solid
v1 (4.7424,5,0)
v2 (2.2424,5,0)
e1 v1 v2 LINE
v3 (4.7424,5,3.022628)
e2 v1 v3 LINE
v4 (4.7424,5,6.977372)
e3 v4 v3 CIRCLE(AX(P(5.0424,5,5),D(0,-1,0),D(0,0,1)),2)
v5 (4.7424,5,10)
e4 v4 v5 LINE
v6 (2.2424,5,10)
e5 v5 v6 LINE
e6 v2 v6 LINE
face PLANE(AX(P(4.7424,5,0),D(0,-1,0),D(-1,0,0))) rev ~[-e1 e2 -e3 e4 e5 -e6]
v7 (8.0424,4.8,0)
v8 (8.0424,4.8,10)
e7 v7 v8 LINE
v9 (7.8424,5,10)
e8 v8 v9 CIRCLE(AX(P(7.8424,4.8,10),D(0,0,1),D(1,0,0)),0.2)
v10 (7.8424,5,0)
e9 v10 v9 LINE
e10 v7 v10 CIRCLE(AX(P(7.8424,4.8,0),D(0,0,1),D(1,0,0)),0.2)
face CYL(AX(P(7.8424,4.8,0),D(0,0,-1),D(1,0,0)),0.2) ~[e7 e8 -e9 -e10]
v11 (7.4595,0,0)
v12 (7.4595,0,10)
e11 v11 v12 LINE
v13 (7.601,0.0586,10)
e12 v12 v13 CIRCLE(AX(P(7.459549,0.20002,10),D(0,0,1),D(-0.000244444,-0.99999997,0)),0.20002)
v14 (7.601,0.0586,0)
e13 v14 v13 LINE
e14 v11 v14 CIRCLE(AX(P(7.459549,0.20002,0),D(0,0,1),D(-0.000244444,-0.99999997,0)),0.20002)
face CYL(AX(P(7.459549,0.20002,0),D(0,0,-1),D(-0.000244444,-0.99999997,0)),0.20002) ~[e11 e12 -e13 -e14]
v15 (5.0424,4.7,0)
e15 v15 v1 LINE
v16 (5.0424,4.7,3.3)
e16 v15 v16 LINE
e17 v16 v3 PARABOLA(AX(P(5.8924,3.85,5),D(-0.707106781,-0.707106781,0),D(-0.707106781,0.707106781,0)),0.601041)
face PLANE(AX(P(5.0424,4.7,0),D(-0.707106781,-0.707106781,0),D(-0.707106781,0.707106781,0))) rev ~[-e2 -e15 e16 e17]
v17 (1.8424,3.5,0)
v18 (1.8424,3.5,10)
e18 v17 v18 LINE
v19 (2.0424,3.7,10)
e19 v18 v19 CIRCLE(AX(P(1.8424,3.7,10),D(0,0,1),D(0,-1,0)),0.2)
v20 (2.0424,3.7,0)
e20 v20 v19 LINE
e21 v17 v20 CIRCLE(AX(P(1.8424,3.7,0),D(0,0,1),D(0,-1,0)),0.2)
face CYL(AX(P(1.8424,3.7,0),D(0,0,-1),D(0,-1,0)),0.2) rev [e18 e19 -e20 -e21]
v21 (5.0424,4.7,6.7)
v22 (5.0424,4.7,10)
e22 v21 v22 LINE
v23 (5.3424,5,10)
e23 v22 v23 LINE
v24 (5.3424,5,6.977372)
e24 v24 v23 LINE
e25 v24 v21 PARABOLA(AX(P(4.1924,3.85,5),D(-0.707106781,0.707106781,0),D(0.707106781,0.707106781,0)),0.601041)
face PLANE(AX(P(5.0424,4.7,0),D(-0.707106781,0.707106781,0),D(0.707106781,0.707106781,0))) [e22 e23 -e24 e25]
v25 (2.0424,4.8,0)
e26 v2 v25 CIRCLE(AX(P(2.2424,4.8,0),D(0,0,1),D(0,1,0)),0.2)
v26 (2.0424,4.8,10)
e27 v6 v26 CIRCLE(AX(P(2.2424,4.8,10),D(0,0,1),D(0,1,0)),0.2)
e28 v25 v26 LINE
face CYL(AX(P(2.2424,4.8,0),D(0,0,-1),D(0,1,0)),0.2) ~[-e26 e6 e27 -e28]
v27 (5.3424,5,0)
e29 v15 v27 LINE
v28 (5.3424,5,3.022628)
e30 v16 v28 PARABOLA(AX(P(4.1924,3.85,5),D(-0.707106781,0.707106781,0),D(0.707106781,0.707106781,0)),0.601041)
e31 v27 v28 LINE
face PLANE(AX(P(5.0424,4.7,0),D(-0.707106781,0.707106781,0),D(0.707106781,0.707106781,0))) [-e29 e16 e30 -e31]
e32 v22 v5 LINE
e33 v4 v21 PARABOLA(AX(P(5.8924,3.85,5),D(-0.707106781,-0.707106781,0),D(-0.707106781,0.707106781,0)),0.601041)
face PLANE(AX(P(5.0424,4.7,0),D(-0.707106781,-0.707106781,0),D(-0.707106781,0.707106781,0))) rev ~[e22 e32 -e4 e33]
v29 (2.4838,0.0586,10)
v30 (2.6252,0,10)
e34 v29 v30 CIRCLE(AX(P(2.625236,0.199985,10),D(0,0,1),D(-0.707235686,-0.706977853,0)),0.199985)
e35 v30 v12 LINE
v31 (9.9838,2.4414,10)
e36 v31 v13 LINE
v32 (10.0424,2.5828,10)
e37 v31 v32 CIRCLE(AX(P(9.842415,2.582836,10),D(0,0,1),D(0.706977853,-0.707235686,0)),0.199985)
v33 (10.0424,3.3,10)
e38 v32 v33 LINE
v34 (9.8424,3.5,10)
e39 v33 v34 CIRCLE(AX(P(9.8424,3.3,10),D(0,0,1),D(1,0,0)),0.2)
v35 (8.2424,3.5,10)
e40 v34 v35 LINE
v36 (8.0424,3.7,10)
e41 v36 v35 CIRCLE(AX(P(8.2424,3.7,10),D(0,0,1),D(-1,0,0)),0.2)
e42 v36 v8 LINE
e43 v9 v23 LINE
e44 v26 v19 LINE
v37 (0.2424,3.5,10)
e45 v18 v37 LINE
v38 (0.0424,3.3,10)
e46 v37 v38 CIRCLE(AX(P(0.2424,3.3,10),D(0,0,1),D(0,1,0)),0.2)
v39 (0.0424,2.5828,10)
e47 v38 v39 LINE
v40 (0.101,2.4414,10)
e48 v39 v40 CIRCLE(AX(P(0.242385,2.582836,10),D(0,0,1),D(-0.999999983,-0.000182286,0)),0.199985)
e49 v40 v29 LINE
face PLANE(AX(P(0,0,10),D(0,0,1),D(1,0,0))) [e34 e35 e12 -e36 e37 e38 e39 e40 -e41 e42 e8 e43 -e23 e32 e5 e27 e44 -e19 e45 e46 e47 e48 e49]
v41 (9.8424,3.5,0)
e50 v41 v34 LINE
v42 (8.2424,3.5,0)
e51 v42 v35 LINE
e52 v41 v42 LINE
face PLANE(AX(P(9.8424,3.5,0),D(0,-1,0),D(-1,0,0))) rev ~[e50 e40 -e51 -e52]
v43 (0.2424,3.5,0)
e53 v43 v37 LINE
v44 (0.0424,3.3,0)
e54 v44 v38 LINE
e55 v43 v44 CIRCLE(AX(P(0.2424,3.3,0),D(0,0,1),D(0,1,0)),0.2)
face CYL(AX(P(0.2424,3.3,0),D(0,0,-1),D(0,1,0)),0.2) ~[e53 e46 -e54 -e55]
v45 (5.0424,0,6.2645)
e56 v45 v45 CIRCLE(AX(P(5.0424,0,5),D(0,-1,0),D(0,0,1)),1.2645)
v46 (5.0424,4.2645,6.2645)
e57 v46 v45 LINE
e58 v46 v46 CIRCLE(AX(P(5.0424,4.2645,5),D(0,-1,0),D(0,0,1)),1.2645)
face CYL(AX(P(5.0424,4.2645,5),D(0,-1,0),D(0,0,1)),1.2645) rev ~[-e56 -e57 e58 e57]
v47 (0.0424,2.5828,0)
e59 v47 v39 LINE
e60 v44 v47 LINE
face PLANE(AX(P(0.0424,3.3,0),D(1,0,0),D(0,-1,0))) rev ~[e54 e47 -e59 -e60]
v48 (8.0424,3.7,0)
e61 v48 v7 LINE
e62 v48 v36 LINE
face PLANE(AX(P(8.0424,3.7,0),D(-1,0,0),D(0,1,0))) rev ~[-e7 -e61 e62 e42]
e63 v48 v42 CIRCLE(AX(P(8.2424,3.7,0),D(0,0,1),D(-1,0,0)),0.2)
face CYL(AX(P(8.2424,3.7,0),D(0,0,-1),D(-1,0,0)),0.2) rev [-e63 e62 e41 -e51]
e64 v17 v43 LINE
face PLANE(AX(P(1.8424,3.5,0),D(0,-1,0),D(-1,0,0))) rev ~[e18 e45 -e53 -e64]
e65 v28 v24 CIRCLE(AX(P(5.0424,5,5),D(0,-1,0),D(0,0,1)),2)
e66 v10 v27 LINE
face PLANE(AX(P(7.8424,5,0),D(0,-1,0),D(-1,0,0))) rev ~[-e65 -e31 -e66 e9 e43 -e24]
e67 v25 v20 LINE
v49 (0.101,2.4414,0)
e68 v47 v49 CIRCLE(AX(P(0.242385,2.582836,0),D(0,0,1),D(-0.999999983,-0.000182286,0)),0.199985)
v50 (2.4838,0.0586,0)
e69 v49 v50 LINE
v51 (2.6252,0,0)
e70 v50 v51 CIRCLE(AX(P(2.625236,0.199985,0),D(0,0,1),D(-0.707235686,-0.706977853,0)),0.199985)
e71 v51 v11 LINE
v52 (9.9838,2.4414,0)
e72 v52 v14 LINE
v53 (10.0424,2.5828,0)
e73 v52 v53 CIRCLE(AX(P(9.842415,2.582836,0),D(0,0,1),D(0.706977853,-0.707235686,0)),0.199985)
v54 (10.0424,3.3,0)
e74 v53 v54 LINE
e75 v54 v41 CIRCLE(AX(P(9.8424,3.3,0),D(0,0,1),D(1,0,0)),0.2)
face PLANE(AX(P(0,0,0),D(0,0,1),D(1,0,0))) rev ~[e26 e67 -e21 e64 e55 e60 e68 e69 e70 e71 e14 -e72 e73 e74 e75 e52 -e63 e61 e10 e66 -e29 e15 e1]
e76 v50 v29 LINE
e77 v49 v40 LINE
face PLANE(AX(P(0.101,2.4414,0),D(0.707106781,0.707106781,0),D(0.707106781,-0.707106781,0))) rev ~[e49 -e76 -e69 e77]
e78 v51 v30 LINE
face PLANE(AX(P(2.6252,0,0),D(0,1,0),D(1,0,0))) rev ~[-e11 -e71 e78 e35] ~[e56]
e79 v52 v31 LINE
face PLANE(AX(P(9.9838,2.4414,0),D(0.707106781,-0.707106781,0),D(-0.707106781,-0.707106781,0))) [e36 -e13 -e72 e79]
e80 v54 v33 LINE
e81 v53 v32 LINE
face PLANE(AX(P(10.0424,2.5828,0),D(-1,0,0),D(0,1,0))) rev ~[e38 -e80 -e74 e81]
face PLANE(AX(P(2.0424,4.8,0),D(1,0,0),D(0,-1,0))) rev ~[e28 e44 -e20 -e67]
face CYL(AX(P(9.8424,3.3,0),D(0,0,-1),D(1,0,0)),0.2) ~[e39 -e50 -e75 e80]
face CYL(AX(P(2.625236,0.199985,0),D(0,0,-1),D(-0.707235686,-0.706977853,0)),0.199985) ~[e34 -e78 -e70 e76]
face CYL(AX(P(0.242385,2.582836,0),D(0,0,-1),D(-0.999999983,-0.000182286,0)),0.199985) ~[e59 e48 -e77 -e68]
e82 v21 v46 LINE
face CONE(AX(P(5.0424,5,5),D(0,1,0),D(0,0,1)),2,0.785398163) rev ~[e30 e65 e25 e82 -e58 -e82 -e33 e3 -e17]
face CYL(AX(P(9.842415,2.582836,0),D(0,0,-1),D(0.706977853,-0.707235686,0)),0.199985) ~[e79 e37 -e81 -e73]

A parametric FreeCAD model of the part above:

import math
import FreeCAD as App
import Part
import Sketcher
from FreeCAD import Vector

doc = App.newDocument("Part")
body = doc.addObject("PartDesign::Body", "Body")

# Sketch on XY plane
sketch1 = doc.addObject("Sketcher::SketchObject", "Sketch")
body.addObject(sketch1)
sketch1.AttachmentSupport = (doc.XY_Plane, [""])
sketch1.MapMode = "FlatFace"
sketch1.addGeometry([
    Part.ArcOfCircle(Part.Circle(Vector(2.6252, 0.2, 0), Vector(0, 0, 1), 0.19997), math.radians(-135), math.radians(-90)),  # 0
    Part.LineSegment(Vector(2.6252, 0, 0), Vector(7.4595, 0, 0)),  # 1
    Part.ArcOfCircle(Part.Circle(Vector(7.4595, 0.2, 0), Vector(0, 0, 1), 0.2), math.radians(-90), math.radians(-44.979747)),  # 2
    Part.LineSegment(Vector(7.601, 0.0586, 0), Vector(9.9838, 2.4414, 0)),  # 3
    Part.ArcOfCircle(Part.Circle(Vector(9.8424, 2.5828, 0), Vector(0, 0, 1), 0.19997), math.radians(-45), math.radians(0)),  # 4
    Part.LineSegment(Vector(10.0424, 2.5828, 0), Vector(10.0424, 3.3, 0)),  # 5
    Part.ArcOfCircle(Part.Circle(Vector(9.8424, 3.3, 0), Vector(0, 0, 1), 0.2), math.radians(0), math.radians(90)),  # 6
    Part.LineSegment(Vector(9.8424, 3.5, 0), Vector(8.2424, 3.5, 0)),  # 7
    Part.ArcOfCircle(Part.Circle(Vector(8.2424, 3.7, 0), Vector(0, 0, 1), 0.2), math.radians(180), math.radians(270)),  # 8
    Part.LineSegment(Vector(8.0424, 3.7, 0), Vector(8.0424, 4.8, 0)),  # 9
    Part.ArcOfCircle(Part.Circle(Vector(7.8424, 4.8, 0), Vector(0, 0, 1), 0.2), math.radians(0), math.radians(90)),  # 10
    Part.LineSegment(Vector(7.8424, 5, 0), Vector(5.3424, 5, 0)),  # 11
    Part.LineSegment(Vector(5.3424, 5, 0), Vector(5.0424, 4.7, 0)),  # 12
    Part.LineSegment(Vector(5.0424, 4.7, 0), Vector(4.7424, 5, 0)),  # 13
    Part.LineSegment(Vector(4.7424, 5, 0), Vector(2.2424, 5, 0)),  # 14
    Part.ArcOfCircle(Part.Circle(Vector(2.2424, 4.8, 0), Vector(0, 0, 1), 0.2), math.radians(90), math.radians(180)),  # 15
    Part.LineSegment(Vector(2.0424, 4.8, 0), Vector(2.0424, 3.7, 0)),  # 16
    Part.ArcOfCircle(Part.Circle(Vector(1.8424, 3.7, 0), Vector(0, 0, 1), 0.2), math.radians(-90), math.radians(0)),  # 17
    Part.LineSegment(Vector(1.8424, 3.5, 0), Vector(0.2424, 3.5, 0)),  # 18
    Part.ArcOfCircle(Part.Circle(Vector(0.2424, 3.3, 0), Vector(0, 0, 1), 0.2), math.radians(90), math.radians(180)),  # 19
    Part.LineSegment(Vector(0.0424, 3.3, 0), Vector(0.0424, 2.5828, 0)),  # 20
    Part.ArcOfCircle(Part.Circle(Vector(0.2424, 2.5828, 0), Vector(0, 0, 1), 0.2), math.radians(180), math.radians(225)),  # 21
    Part.LineSegment(Vector(0.101, 2.4414, 0), Vector(2.4838, 0.0586, 0)),  # 22
], False)
sketch1.addConstraint([
    Sketcher.Constraint("Tangent", 0, 2, 1, 1),
    Sketcher.Constraint("Tangent", 1, 2, 2, 1),
    Sketcher.Constraint("Tangent", 2, 2, 3, 1),
    Sketcher.Constraint("Tangent", 3, 2, 4, 1),
    Sketcher.Constraint("Tangent", 4, 2, 5, 1),
    Sketcher.Constraint("Tangent", 5, 2, 6, 1),
    Sketcher.Constraint("Tangent", 6, 2, 7, 1),
    Sketcher.Constraint("Tangent", 7, 2, 8, 2),
    Sketcher.Constraint("Tangent", 8, 1, 9, 1),
    Sketcher.Constraint("Tangent", 9, 2, 10, 1),
    Sketcher.Constraint("Tangent", 10, 2, 11, 1),
    Sketcher.Constraint("Coincident", 11, 2, 12, 1),
    Sketcher.Constraint("Coincident", 12, 2, 13, 1),
    Sketcher.Constraint("Coincident", 13, 2, 14, 1),
    Sketcher.Constraint("Tangent", 14, 2, 15, 1),
    Sketcher.Constraint("Tangent", 15, 2, 16, 1),
    Sketcher.Constraint("Tangent", 16, 2, 17, 2),
    Sketcher.Constraint("Tangent", 17, 1, 18, 1),
    Sketcher.Constraint("Tangent", 18, 2, 19, 1),
    Sketcher.Constraint("Tangent", 19, 2, 20, 1),
    Sketcher.Constraint("Tangent", 20, 2, 21, 1),
    Sketcher.Constraint("Tangent", 21, 2, 22, 1),
    Sketcher.Constraint("Tangent", 22, 2, 0, 1),
    Sketcher.Constraint("Horizontal", 1),
    Sketcher.Constraint("Vertical", 5),
    Sketcher.Constraint("Horizontal", 7),
    Sketcher.Constraint("Vertical", 9),
    Sketcher.Constraint("Horizontal", 11),
    Sketcher.Constraint("Horizontal", 14),
    Sketcher.Constraint("Vertical", 16),
    Sketcher.Constraint("Horizontal", 18),
    Sketcher.Constraint("Vertical", 20),
    Sketcher.Constraint("Equal", 0, 2),
    Sketcher.Constraint("Equal", 2, 4),
    Sketcher.Constraint("Equal", 4, 6),
    Sketcher.Constraint("Equal", 6, 8),
    Sketcher.Constraint("Equal", 8, 10),
    Sketcher.Constraint("Equal", 10, 15),
    Sketcher.Constraint("Equal", 15, 17),
    Sketcher.Constraint("Equal", 17, 19),
    Sketcher.Constraint("Equal", 19, 21),
    Sketcher.Constraint("PointOnObject", 0, 2, -1),
    Sketcher.Constraint("Parallel", 3, 12),
    Sketcher.Constraint("Perpendicular", 12, 13),
    Sketcher.Constraint("Parallel", 13, 22),
    Sketcher.Constraint("Horizontal", 10, 3, 15, 3),
    Sketcher.Constraint("Horizontal", 8, 3, 17, 3),
    Sketcher.Constraint("Horizontal", 4, 3, 21, 3),
    Sketcher.Constraint("Horizontal", 3, 2, 21, 2),
    Sketcher.Constraint("Equal", 11, 14),
    Sketcher.Constraint("Equal", 7, 18),
    Sketcher.Constraint("Radius", 0, 0.2),
    Sketcher.Constraint("DistanceY", -1, 1, 10, 2, 5.0),
    Sketcher.Constraint("DistanceX", 10, 3, 6, 3, 2.0),
    Sketcher.Constraint("DistanceX", 15, 3, 8, 3, 6.0),
    Sketcher.Constraint("DistanceY", 6, 3, 10, 3, 1.5),
    Sketcher.Constraint("DistanceX", 12, 2, 11, 2, 0.3),
    Sketcher.Constraint("DistanceX", 1, 1, 1, 2, 4.8343),
    Sketcher.Constraint("DistanceX", -1, 1, 2, 2, 7.601),
])
pad1 = doc.addObject("PartDesign::Pad", "Pad")
body.addObject(pad1)
pad1.Profile = sketch1
pad1.Length = 10

# Sketch on XZ plane
sketch2 = doc.addObject("Sketcher::SketchObject", "Sketch001")
body.addObject(sketch2)
sketch2.AttachmentSupport = (doc.XZ_Plane, [""])
sketch2.MapMode = "FlatFace"
sketch2.AttachmentOffset = App.Placement(Vector(0, 0, -5), App.Rotation())
sketch2.addGeometry(Part.Circle(Vector(5.0424, 5, 0), Vector(0, 0, 1), 1.2645), False)
sketch2.addConstraint([
    Sketcher.Constraint("Diameter", 0, 2.529),
    Sketcher.Constraint("DistanceY", -1, 1, 0, 3, 5.0),
    Sketcher.Constraint("DistanceX", -1, 1, 0, 3, 5.0424),
])
doc.recompute()
hole = doc.addObject("PartDesign::Hole", "Hole")
body.addObject(hole)
hole.Profile = sketch2
hole.ThreadType = "None"
hole.Diameter = 2.529
hole.DepthType = "Dimension"
hole.Depth = 5.834
hole.DrillPoint = "Flat"
hole.HoleCutType = "Countersink"
hole.HoleCutDiameter = 4
hole.HoleCutCountersinkAngle = 90
hole.Reversed = True

doc.recompute()
